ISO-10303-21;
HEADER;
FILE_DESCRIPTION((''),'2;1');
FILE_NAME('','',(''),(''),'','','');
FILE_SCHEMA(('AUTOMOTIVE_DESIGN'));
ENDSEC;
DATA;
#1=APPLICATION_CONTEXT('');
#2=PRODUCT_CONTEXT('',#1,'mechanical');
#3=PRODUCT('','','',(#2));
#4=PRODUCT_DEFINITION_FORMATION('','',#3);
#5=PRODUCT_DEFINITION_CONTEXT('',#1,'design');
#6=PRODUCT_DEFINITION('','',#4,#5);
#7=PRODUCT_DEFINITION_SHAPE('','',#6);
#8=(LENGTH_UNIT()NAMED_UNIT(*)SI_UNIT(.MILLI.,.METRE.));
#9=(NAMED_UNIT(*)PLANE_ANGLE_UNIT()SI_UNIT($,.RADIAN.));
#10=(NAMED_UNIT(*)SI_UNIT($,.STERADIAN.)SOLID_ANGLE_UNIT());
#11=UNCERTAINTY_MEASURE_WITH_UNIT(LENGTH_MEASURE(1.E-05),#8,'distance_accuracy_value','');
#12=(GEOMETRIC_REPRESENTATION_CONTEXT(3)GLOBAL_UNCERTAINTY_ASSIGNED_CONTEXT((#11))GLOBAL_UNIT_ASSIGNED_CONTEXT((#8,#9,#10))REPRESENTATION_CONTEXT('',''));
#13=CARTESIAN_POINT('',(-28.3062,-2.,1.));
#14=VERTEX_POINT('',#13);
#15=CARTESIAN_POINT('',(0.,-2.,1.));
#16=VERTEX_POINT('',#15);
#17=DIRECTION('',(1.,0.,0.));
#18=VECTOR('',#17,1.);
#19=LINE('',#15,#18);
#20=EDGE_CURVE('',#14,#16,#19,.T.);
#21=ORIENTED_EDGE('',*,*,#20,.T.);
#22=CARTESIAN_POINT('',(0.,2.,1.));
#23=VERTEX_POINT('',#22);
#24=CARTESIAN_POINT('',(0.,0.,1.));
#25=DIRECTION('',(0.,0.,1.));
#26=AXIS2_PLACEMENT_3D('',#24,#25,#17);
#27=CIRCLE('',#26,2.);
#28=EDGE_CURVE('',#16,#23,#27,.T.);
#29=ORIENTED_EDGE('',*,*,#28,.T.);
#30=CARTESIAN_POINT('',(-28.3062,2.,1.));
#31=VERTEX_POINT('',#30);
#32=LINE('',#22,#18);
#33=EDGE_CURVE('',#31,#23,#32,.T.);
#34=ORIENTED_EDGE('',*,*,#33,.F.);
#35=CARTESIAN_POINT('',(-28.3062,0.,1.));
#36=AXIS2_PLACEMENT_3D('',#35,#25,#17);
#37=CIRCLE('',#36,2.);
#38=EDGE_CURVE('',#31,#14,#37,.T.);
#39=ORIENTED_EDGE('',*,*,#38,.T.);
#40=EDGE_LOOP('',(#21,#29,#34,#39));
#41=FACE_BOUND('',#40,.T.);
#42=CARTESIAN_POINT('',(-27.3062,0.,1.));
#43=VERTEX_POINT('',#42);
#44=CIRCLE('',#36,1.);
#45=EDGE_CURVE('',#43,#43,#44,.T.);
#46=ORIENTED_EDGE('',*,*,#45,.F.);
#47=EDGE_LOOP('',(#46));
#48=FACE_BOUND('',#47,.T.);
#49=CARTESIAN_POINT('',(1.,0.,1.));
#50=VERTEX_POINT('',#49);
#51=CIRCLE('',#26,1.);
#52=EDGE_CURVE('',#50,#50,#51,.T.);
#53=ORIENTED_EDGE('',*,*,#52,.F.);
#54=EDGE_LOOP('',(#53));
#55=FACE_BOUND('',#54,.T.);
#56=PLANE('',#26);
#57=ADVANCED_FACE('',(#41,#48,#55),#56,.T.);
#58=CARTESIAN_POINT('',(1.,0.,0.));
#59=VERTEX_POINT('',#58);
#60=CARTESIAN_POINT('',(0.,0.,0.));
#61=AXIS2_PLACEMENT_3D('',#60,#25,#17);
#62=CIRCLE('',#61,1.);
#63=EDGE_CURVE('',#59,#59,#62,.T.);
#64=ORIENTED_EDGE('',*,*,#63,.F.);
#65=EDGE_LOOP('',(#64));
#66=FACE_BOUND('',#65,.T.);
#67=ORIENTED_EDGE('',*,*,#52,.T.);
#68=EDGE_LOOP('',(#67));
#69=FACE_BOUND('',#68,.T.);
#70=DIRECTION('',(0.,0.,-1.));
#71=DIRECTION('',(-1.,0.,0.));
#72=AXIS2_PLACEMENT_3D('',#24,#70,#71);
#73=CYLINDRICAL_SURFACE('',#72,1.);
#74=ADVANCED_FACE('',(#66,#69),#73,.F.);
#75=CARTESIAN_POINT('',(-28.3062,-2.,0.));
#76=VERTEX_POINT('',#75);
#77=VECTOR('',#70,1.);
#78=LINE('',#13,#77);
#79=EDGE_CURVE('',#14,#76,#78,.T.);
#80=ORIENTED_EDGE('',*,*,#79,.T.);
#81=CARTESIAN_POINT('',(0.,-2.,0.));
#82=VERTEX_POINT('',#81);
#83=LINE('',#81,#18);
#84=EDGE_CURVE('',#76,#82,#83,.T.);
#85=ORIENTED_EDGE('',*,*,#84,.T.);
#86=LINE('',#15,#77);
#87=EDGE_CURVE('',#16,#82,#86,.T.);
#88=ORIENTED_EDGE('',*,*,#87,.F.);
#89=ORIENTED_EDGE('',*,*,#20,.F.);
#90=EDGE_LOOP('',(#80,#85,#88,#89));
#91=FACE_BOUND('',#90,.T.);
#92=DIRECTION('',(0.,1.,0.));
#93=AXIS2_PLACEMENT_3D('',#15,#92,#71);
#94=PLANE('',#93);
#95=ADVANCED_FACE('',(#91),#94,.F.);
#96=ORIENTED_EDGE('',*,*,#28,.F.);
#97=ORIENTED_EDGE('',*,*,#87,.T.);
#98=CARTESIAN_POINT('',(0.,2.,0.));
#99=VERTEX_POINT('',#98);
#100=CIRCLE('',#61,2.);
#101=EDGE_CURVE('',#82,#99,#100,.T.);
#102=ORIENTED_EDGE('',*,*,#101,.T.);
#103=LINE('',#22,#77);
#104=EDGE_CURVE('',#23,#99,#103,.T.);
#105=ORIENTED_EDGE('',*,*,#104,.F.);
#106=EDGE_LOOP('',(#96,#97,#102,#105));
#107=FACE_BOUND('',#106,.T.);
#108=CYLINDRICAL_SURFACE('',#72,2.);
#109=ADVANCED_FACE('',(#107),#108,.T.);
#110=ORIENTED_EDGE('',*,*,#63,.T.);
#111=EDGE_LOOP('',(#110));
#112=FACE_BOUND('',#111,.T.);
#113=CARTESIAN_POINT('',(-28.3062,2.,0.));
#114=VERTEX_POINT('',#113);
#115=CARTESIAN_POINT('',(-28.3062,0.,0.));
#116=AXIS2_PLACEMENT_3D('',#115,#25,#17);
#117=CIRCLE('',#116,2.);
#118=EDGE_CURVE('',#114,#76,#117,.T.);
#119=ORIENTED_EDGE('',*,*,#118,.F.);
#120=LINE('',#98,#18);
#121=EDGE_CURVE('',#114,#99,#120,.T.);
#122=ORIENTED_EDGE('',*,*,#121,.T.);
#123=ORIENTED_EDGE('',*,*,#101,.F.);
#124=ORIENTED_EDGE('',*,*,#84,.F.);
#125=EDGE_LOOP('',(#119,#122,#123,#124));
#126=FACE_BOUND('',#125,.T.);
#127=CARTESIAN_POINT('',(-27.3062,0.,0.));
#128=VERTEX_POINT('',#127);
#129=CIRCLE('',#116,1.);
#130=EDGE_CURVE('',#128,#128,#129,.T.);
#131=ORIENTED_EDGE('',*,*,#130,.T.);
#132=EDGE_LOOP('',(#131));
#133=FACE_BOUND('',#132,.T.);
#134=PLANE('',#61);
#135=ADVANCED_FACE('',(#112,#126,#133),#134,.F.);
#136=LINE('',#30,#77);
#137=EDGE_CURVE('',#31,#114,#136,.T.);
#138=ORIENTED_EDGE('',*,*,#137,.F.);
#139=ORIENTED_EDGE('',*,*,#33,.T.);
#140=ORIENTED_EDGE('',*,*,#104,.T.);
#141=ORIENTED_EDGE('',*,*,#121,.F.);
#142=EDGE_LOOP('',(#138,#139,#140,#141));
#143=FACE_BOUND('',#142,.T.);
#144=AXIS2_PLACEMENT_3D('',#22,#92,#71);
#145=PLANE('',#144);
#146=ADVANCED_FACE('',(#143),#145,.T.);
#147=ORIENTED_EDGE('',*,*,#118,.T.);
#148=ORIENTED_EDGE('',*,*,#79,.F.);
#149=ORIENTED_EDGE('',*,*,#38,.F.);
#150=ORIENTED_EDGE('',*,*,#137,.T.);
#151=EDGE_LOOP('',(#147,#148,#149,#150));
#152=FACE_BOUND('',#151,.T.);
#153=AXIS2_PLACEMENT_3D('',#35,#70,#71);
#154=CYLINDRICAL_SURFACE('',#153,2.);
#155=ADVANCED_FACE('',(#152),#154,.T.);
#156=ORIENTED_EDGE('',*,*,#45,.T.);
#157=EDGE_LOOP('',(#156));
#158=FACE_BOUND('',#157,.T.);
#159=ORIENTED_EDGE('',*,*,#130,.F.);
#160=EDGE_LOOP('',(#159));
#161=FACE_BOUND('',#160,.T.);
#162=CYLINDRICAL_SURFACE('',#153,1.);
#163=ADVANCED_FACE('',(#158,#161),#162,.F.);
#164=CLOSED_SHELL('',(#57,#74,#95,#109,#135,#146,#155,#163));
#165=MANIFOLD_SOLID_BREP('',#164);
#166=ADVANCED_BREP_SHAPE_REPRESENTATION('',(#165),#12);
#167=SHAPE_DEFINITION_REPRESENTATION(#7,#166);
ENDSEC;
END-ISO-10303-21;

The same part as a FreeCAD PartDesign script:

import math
import FreeCAD as App
import Part
import Sketcher
Q = App.Units.Quantity

doc = App.newDocument("Part")
body = doc.addObject("PartDesign::Body", "Body")

# Sketch on XY plane
sketch1 = body.newObject("Sketcher::SketchObject", "Sketch")
sketch1.AttachmentSupport = (doc.getObject("XY_Plane"), [""])
sketch1.MapMode = "FlatFace"
sketch1.addGeometry(Part.LineSegment(App.Vector(0, 2, 0), App.Vector(-28.3062, 2, 0)), False)
sketch1.addGeometry(Part.ArcOfCircle(Part.Circle(App.Vector(-28.3062, 0, 0), App.Vector(0, 0, 1), 2), math.radians(90), math.radians(270)), False)
sketch1.addGeometry(Part.LineSegment(App.Vector(-28.3062, -2, 0), App.Vector(0, -2, 0)), False)
sketch1.addGeometry(Part.ArcOfCircle(Part.Circle(App.Vector(0, 0, 0), App.Vector(0, 0, 1), 2), math.radians(-90), math.radians(90)), False)
sketch1.addGeometry(Part.Circle(App.Vector(-28.3062, 0, 0), App.Vector(0, 0, 1), 1), False)
sketch1.addGeometry(Part.Circle(App.Vector(0, 0, 0), App.Vector(0, 0, 1), 1), False)
sketch1.addConstraint(Sketcher.Constraint("Tangent", 0, 2, 1, 1))
sketch1.addConstraint(Sketcher.Constraint("Tangent", 1, 2, 2, 1))
sketch1.addConstraint(Sketcher.Constraint("Tangent", 2, 2, 3, 1))
sketch1.addConstraint(Sketcher.Constraint("Tangent", 3, 2, 0, 1))
sketch1.addConstraint(Sketcher.Constraint("Horizontal", 0))
sketch1.addConstraint(Sketcher.Constraint("Horizontal", 2))
sketch1.addConstraint(Sketcher.Constraint("Coincident", 3, 3, -1, 1))
sketch1.addConstraint(Sketcher.Constraint("Coincident", 5, 3, -1, 1))
sketch1.addConstraint(Sketcher.Constraint("Coincident", 4, 3, 1, 3))
sketch1.addConstraint(Sketcher.Constraint("Equal", 4, 5))
sketch1.addConstraint(Sketcher.Constraint("Diameter", 4, Q("2 mm")))
sketch1.addConstraint(Sketcher.Constraint("Radius", 1, Q("2 mm")))
sketch1.addConstraint(Sketcher.Constraint("DistanceX", 0, 2, 0, 1, Q("28.3062 mm")))
pad1 = body.newObject("PartDesign::Pad", "Pad")
pad1.Profile = sketch1
pad1.Length = 1

doc.recompute()
